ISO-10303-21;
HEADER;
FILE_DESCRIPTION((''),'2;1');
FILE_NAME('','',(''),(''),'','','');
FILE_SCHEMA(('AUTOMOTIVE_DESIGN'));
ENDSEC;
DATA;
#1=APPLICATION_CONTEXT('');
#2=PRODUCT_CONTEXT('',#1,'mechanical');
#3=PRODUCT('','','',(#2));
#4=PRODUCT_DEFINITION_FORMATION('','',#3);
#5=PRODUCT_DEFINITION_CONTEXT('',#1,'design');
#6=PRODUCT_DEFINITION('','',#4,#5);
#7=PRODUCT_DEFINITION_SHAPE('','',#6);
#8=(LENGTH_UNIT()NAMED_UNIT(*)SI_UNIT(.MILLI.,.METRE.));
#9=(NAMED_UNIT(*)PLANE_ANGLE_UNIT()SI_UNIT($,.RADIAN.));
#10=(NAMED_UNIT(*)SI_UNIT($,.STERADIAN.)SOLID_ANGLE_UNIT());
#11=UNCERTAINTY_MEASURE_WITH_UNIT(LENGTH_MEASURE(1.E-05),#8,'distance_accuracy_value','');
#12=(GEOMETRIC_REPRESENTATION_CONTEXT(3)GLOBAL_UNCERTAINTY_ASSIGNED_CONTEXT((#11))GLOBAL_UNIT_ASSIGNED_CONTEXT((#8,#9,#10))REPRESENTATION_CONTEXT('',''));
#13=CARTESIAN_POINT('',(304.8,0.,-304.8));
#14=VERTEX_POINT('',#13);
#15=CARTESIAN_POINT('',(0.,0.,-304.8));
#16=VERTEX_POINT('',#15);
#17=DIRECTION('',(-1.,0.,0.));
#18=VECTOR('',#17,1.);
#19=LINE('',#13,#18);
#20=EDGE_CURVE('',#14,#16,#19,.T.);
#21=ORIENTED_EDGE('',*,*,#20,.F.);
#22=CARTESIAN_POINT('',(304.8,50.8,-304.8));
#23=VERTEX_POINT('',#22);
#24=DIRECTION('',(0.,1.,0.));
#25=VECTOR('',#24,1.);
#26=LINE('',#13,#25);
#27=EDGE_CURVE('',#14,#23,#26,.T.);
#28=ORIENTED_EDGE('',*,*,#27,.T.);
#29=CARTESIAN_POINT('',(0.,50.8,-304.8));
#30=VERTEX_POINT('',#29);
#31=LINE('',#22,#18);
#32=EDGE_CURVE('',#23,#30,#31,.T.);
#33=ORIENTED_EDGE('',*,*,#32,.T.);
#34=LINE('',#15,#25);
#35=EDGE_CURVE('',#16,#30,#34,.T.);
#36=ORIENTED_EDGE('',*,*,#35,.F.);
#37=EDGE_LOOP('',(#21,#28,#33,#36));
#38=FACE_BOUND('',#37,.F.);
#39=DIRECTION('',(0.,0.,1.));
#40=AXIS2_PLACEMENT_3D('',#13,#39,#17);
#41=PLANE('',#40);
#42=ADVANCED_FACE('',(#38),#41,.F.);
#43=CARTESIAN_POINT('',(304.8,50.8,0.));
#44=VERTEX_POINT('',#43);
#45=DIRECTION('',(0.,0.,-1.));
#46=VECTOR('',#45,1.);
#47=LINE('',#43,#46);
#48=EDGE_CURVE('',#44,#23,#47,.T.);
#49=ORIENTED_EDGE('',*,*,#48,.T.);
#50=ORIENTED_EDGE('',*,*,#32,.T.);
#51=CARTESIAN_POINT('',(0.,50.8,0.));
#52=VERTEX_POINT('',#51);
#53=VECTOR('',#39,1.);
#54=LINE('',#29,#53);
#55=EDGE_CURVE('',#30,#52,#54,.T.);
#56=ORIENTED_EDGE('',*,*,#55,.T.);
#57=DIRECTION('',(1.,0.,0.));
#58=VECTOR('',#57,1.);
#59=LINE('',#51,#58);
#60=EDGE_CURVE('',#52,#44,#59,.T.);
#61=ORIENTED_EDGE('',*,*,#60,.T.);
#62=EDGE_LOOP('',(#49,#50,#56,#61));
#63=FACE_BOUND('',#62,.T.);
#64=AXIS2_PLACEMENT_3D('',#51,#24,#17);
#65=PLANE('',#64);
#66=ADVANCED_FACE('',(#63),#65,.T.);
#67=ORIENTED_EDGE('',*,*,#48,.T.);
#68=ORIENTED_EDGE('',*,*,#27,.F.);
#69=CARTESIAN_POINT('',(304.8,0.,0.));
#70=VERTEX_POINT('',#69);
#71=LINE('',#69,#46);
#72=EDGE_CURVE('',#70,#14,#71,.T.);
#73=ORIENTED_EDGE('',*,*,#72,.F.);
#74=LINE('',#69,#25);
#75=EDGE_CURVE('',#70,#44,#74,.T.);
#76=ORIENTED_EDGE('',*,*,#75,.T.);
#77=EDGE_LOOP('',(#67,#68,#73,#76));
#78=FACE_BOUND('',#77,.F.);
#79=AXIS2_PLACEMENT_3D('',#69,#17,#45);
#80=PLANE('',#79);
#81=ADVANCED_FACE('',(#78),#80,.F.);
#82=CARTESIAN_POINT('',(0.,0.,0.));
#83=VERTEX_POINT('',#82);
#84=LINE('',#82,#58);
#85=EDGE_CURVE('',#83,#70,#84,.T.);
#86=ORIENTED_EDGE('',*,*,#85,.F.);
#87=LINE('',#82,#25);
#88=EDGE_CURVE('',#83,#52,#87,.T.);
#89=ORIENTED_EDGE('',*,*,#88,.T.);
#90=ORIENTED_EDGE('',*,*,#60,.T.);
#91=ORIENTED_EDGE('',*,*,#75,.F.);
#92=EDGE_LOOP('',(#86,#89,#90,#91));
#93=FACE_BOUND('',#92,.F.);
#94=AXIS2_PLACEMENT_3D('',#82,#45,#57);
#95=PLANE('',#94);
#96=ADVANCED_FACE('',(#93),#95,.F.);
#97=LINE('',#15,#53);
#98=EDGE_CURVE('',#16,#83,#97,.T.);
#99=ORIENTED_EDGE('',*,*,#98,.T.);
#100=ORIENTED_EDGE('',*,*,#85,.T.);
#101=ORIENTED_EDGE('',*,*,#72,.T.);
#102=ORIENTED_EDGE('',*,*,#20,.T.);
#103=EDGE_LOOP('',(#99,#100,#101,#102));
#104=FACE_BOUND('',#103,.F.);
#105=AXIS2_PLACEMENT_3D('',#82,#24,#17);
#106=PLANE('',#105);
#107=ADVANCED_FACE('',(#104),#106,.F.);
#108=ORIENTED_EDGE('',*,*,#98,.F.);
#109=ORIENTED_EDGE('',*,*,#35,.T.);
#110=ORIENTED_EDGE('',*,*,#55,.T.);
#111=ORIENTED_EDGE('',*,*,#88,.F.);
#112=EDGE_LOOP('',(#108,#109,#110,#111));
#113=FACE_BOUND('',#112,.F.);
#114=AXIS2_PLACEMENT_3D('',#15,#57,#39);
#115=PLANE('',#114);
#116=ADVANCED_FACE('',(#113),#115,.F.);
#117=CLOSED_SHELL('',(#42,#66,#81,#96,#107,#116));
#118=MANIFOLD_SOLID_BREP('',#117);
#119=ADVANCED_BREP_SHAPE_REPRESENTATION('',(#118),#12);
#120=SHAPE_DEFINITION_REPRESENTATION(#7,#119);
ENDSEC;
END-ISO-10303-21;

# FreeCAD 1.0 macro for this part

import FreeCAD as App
import Part
import Sketcher
Q = App.Units.Quantity

doc = App.newDocument("Part")
params = doc.addObject("Spreadsheet::Sheet", "Params")
for row, (alias, value) in enumerate([
    ("sketch1_width", "12 in"),
    ("pad1_length", "2 in"),
], start=1):
    params.set(f"A{row}", alias)
    params.set(f"B{row}", "=" + value)
    params.setAlias(f"B{row}", alias)

body = doc.addObject("PartDesign::Body", "Body")

# Sketch on XZ plane
sketch1 = body.newObject("Sketcher::SketchObject", "Sketch")
sketch1.AttachmentSupport = (doc.getObject("XZ_Plane"), [""])
sketch1.MapMode = "FlatFace"
sketch1.addGeometry(Part.LineSegment(App.Vector(0, -305, 0), App.Vector(0, 0, 0)), False)
sketch1.addGeometry(Part.LineSegment(App.Vector(0, 0, 0), App.Vector(305, 0, 0)), False)
sketch1.addGeometry(Part.LineSegment(App.Vector(305, 0, 0), App.Vector(305, -305, 0)), False)
sketch1.addGeometry(Part.LineSegment(App.Vector(305, -305, 0), App.Vector(0, -305, 0)), False)
sketch1.addConstraint(Sketcher.Constraint("Coincident", 0, 2, 1, 1))
sketch1.addConstraint(Sketcher.Constraint("Coincident", 1, 2, 2, 1))
sketch1.addConstraint(Sketcher.Constraint("Coincident", 2, 2, 3, 1))
sketch1.addConstraint(Sketcher.Constraint("Coincident", 3, 2, 0, 1))
sketch1.addConstraint(Sketcher.Constraint("Vertical", 0))
sketch1.addConstraint(Sketcher.Constraint("Horizontal", 1))
sketch1.addConstraint(Sketcher.Constraint("Vertical", 2))
sketch1.addConstraint(Sketcher.Constraint("Horizontal", 3))
sketch1.addConstraint(Sketcher.Constraint("Coincident", 0, 2, -1, 1))
sketch1.addConstraint(Sketcher.Constraint("Equal", 3, 0))
sketch1.addConstraint(Sketcher.Constraint("DistanceX", 1, 1, 1, 2, Q("12 in")))
sketch1.setExpression("Constraints[10]", "Params.sketch1_width")
pad1 = body.newObject("PartDesign::Pad", "Pad")
pad1.Profile = sketch1
pad1.setExpression("Length", "Params.pad1_length")
pad1.Reversed = True

doc.recompute()
